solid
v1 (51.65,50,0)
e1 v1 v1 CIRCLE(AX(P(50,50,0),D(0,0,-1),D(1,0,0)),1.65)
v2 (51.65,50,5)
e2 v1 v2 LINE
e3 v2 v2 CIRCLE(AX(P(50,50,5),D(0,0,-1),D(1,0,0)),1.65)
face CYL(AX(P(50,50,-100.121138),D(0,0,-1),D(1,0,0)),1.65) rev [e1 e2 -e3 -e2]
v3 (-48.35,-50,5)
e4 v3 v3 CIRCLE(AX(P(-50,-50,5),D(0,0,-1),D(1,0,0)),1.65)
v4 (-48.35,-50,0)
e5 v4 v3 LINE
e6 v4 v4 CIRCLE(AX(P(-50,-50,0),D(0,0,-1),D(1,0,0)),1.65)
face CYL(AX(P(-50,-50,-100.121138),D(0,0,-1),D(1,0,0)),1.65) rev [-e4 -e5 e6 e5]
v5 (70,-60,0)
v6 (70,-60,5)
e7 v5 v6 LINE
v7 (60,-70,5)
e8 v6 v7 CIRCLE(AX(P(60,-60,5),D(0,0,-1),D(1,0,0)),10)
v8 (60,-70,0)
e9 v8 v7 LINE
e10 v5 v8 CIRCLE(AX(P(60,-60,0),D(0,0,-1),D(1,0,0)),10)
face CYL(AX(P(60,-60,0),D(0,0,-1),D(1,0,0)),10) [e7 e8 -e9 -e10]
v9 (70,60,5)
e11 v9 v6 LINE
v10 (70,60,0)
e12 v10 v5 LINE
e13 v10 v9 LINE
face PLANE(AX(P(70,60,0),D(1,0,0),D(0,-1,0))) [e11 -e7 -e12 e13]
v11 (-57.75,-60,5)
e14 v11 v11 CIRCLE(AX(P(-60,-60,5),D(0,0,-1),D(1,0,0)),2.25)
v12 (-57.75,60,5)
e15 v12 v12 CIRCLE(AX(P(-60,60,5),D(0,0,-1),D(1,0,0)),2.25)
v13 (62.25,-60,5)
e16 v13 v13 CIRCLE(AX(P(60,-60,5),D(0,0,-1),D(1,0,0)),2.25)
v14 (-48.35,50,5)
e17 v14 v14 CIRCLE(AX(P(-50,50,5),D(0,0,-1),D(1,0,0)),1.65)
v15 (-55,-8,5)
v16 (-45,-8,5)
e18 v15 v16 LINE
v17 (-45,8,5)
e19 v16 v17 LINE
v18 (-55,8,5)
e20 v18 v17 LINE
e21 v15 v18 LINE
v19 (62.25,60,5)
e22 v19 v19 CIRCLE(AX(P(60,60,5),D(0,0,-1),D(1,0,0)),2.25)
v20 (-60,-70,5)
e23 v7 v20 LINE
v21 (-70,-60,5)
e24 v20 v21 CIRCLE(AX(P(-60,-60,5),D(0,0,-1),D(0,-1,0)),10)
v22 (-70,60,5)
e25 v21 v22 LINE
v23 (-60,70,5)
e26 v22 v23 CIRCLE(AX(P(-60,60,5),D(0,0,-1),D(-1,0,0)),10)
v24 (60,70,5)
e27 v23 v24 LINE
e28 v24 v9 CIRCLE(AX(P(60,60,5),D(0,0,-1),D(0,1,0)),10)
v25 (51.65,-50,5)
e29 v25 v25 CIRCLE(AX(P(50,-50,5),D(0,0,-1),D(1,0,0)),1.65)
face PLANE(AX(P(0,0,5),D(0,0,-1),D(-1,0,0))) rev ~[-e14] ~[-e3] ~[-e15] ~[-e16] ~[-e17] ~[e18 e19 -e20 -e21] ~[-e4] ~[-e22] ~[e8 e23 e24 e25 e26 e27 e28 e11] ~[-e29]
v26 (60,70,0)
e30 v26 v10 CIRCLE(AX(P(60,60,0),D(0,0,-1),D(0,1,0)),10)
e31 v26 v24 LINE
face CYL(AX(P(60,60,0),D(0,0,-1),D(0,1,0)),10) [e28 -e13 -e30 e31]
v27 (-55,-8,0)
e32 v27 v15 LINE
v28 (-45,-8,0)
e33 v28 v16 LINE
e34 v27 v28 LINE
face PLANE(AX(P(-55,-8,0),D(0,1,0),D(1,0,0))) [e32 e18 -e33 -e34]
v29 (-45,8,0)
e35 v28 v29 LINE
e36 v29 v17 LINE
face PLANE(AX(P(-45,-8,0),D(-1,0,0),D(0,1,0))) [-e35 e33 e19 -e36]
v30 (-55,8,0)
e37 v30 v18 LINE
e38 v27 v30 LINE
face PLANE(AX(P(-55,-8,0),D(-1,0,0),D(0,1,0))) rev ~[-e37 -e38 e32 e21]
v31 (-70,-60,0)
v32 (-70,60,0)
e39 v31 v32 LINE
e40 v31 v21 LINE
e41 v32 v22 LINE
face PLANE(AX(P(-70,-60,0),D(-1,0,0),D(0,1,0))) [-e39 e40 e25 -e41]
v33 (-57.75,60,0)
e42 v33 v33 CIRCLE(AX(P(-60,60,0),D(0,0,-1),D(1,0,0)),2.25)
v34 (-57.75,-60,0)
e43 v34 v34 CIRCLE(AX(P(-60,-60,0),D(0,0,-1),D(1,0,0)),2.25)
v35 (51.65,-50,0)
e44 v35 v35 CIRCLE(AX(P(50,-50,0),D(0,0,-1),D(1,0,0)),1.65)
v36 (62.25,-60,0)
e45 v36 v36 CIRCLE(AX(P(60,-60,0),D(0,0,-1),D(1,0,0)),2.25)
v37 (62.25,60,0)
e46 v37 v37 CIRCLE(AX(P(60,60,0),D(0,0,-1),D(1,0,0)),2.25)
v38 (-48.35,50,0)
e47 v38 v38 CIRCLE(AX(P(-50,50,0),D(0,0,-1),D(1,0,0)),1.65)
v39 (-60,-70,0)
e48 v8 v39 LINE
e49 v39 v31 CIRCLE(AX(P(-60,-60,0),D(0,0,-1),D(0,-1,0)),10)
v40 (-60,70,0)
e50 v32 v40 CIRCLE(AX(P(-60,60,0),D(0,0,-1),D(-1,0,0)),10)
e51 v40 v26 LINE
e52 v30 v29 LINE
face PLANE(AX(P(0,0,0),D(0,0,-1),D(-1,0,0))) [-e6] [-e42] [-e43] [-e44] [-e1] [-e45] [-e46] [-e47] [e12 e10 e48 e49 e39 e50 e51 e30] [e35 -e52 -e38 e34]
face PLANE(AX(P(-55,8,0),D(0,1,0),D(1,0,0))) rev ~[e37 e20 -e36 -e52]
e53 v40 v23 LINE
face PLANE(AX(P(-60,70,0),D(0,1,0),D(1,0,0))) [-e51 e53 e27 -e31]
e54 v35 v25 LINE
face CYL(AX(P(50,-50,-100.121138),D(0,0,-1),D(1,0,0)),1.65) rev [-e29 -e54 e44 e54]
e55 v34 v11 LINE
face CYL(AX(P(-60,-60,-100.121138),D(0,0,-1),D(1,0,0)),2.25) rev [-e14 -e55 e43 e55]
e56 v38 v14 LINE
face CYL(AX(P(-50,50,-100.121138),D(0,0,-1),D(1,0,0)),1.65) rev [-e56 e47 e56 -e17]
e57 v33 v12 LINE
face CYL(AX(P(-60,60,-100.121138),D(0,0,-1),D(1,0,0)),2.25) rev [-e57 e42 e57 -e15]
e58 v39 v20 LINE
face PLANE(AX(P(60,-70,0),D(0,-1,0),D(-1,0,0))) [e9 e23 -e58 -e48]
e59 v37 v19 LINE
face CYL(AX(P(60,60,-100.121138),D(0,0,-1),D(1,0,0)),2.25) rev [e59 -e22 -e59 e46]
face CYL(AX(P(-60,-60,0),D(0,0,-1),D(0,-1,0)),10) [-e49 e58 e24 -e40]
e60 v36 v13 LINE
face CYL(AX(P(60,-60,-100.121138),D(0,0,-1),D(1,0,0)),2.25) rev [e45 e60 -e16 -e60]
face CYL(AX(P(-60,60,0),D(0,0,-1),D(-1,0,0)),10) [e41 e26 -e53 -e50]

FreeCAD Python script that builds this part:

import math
import FreeCAD as App
import Part
import Sketcher
from FreeCAD import Vector


def add_polygon(sketch, points):
    """Adds a closed chain of lines whose ends are joined by coincident constraints."""
    first, n = sketch.GeometryCount, len(points)
    for a, b in zip(points, points[1:] + points[:1]):
        sketch.addGeometry(Part.LineSegment(App.Vector(*a, 0), App.Vector(*b, 0)), False)
    for i in range(n):
        sketch.addConstraint(Sketcher.Constraint("Coincident", first + i, 2, first + (i + 1) % n, 1))

doc = App.newDocument("Part")
body = doc.addObject("PartDesign::Body", "Body")

# Sketch on XY plane
sketch1 = body.newObject("Sketcher::SketchObject", "Sketch")
sketch1.AttachmentSupport = (doc.getObject("XY_Plane"), [""])
sketch1.MapMode = "FlatFace"
sketch1.addGeometry(Part.LineSegment(Vector(-70, 60, 0), Vector(-70, -60, 0)), False)  # 0
sketch1.addGeometry(Part.ArcOfCircle(Part.Circle(Vector(-60, -60, 0), Vector(0, 0, 1), 10), math.radians(180), math.radians(270)), False)  # 1
sketch1.addGeometry(Part.LineSegment(Vector(-60, -70, 0), Vector(60, -70, 0)), False)  # 2
sketch1.addGeometry(Part.ArcOfCircle(Part.Circle(Vector(60, -60, 0), Vector(0, 0, 1), 10), math.radians(-90), math.radians(0)), False)  # 3
sketch1.addGeometry(Part.LineSegment(Vector(70, -60, 0), Vector(70, 60, 0)), False)  # 4
sketch1.addGeometry(Part.ArcOfCircle(Part.Circle(Vector(60, 60, 0), Vector(0, 0, 1), 10), math.radians(0), math.radians(90)), False)  # 5
sketch1.addGeometry(Part.LineSegment(Vector(60, 70, 0), Vector(-60, 70, 0)), False)  # 6
sketch1.addGeometry(Part.ArcOfCircle(Part.Circle(Vector(-60, 60, 0), Vector(0, 0, 1), 10), math.radians(90), math.radians(180)), False)  # 7
add_polygon(sketch1, [(-55, -8), (-55, 8), (-45, 8), (-45, -8)])  # lines 8-11
sketch1.addConstraint(Sketcher.Constraint("Tangent", 0, 2, 1, 1))
sketch1.addConstraint(Sketcher.Constraint("Tangent", 1, 2, 2, 1))
sketch1.addConstraint(Sketcher.Constraint("Tangent", 2, 2, 3, 1))
sketch1.addConstraint(Sketcher.Constraint("Tangent", 3, 2, 4, 1))
sketch1.addConstraint(Sketcher.Constraint("Tangent", 4, 2, 5, 1))
sketch1.addConstraint(Sketcher.Constraint("Tangent", 5, 2, 6, 1))
sketch1.addConstraint(Sketcher.Constraint("Tangent", 6, 2, 7, 1))
sketch1.addConstraint(Sketcher.Constraint("Tangent", 7, 2, 0, 1))
sketch1.addConstraint(Sketcher.Constraint("Vertical", 0))
sketch1.addConstraint(Sketcher.Constraint("Horizontal", 2))
sketch1.addConstraint(Sketcher.Constraint("Vertical", 4))
sketch1.addConstraint(Sketcher.Constraint("Horizontal", 6))
sketch1.addConstraint(Sketcher.Constraint("Vertical", 8))
sketch1.addConstraint(Sketcher.Constraint("Horizontal", 9))
sketch1.addConstraint(Sketcher.Constraint("Vertical", 10))
sketch1.addConstraint(Sketcher.Constraint("Horizontal", 11))
sketch1.addConstraint(Sketcher.Constraint("Equal", 1, 3))
sketch1.addConstraint(Sketcher.Constraint("Equal", 3, 5))
sketch1.addConstraint(Sketcher.Constraint("Equal", 5, 7))
sketch1.addConstraint(Sketcher.Constraint("Symmetric", 1, 3, 5, 3, -1, 1))
sketch1.addConstraint(Sketcher.Constraint("Equal", 6, 0))
sketch1.addConstraint(Sketcher.Constraint("Radius", 1, 10.0))
sketch1.addConstraint(Sketcher.Constraint("DistanceX", 2, 1, 2, 2, 120.0))
sketch1.addConstraint(Sketcher.Constraint("DistanceX", 9, 1, 9, 2, 10.0))
sketch1.addConstraint(Sketcher.Constraint("DistanceY", 8, 1, 8, 2, 16.0))
sketch1.addConstraint(Sketcher.Constraint("DistanceX", 8, 2, -1, 1, 55.0))
sketch1.addConstraint(Sketcher.Constraint("DistanceY", -1, 1, 8, 2, 8.0))
pad1 = body.newObject("PartDesign::Pad", "Pad")
pad1.Profile = sketch1
pad1.Length = 5

# Sketch on XY plane
sketch2 = body.newObject("Sketcher::SketchObject", "Sketch001")
sketch2.AttachmentSupport = (doc.getObject("XY_Plane"), [""])
sketch2.MapMode = "FlatFace"
sketch2.addGeometry(Part.Circle(Vector(-60, -60, 0), Vector(0, 0, 1), 2.2), False)
sketch2.addGeometry(Part.Circle(Vector(-50, -50, 0), Vector(0, 0, 1), 1.6), False)
sketch2.addGeometry(Part.Circle(Vector(60, -60, 0), Vector(0, 0, 1), 2.2), False)
sketch2.addGeometry(Part.Circle(Vector(50, -50, 0), Vector(0, 0, 1), 1.6), False)
sketch2.addGeometry(Part.Circle(Vector(-50, 50, 0), Vector(0, 0, 1), 1.6), False)
sketch2.addGeometry(Part.Circle(Vector(-60, 60, 0), Vector(0, 0, 1), 2.2), False)
sketch2.addGeometry(Part.Circle(Vector(50, 50, 0), Vector(0, 0, 1), 1.6), False)
sketch2.addGeometry(Part.Circle(Vector(60, 60, 0), Vector(0, 0, 1), 2.2), False)
sketch2.addConstraint(Sketcher.Constraint("Equal", 0, 2))
sketch2.addConstraint(Sketcher.Constraint("Equal", 1, 3))
sketch2.addConstraint(Sketcher.Constraint("Equal", 3, 4))
sketch2.addConstraint(Sketcher.Constraint("Equal", 2, 5))
sketch2.addConstraint(Sketcher.Constraint("Equal", 4, 6))
sketch2.addConstraint(Sketcher.Constraint("Equal", 5, 7))
sketch2.addConstraint(Sketcher.Constraint("Symmetric", 3, 3, 4, 3, -1, 1))
sketch2.addConstraint(Sketcher.Constraint("Symmetric", 2, 3, 5, 3, -1, 1))
sketch2.addConstraint(Sketcher.Constraint("Symmetric", 1, 3, 6, 3, -1, 1))
sketch2.addConstraint(Sketcher.Constraint("Symmetric", 0, 3, 7, 3, -1, 1))
sketch2.addConstraint(Sketcher.Constraint("Symmetric", 0, 3, 2, 3, -2))
sketch2.addConstraint(Sketcher.Constraint("Symmetric", 1, 3, 3, 3, -2))
sketch2.addConstraint(Sketcher.Constraint("Diameter", 0, 4.5))
sketch2.addConstraint(Sketcher.Constraint("Diameter", 1, 3.3))
sketch2.addConstraint(Sketcher.Constraint("DistanceX", 0, 3, -1, 1, 60.0))
sketch2.addConstraint(Sketcher.Constraint("DistanceY", 0, 3, -1, 1, 60.0))
sketch2.addConstraint(Sketcher.Constraint("DistanceX", 1, 3, -1, 1, 50.0))
sketch2.addConstraint(Sketcher.Constraint("DistanceY", 1, 3, -1, 1, 50.0))
pocket1 = body.newObject("PartDesign::Pocket", "Pocket")
pocket1.Profile = sketch2
pocket1.Type = "ThroughAll"
pocket1.Midplane = True

doc.recompute()
